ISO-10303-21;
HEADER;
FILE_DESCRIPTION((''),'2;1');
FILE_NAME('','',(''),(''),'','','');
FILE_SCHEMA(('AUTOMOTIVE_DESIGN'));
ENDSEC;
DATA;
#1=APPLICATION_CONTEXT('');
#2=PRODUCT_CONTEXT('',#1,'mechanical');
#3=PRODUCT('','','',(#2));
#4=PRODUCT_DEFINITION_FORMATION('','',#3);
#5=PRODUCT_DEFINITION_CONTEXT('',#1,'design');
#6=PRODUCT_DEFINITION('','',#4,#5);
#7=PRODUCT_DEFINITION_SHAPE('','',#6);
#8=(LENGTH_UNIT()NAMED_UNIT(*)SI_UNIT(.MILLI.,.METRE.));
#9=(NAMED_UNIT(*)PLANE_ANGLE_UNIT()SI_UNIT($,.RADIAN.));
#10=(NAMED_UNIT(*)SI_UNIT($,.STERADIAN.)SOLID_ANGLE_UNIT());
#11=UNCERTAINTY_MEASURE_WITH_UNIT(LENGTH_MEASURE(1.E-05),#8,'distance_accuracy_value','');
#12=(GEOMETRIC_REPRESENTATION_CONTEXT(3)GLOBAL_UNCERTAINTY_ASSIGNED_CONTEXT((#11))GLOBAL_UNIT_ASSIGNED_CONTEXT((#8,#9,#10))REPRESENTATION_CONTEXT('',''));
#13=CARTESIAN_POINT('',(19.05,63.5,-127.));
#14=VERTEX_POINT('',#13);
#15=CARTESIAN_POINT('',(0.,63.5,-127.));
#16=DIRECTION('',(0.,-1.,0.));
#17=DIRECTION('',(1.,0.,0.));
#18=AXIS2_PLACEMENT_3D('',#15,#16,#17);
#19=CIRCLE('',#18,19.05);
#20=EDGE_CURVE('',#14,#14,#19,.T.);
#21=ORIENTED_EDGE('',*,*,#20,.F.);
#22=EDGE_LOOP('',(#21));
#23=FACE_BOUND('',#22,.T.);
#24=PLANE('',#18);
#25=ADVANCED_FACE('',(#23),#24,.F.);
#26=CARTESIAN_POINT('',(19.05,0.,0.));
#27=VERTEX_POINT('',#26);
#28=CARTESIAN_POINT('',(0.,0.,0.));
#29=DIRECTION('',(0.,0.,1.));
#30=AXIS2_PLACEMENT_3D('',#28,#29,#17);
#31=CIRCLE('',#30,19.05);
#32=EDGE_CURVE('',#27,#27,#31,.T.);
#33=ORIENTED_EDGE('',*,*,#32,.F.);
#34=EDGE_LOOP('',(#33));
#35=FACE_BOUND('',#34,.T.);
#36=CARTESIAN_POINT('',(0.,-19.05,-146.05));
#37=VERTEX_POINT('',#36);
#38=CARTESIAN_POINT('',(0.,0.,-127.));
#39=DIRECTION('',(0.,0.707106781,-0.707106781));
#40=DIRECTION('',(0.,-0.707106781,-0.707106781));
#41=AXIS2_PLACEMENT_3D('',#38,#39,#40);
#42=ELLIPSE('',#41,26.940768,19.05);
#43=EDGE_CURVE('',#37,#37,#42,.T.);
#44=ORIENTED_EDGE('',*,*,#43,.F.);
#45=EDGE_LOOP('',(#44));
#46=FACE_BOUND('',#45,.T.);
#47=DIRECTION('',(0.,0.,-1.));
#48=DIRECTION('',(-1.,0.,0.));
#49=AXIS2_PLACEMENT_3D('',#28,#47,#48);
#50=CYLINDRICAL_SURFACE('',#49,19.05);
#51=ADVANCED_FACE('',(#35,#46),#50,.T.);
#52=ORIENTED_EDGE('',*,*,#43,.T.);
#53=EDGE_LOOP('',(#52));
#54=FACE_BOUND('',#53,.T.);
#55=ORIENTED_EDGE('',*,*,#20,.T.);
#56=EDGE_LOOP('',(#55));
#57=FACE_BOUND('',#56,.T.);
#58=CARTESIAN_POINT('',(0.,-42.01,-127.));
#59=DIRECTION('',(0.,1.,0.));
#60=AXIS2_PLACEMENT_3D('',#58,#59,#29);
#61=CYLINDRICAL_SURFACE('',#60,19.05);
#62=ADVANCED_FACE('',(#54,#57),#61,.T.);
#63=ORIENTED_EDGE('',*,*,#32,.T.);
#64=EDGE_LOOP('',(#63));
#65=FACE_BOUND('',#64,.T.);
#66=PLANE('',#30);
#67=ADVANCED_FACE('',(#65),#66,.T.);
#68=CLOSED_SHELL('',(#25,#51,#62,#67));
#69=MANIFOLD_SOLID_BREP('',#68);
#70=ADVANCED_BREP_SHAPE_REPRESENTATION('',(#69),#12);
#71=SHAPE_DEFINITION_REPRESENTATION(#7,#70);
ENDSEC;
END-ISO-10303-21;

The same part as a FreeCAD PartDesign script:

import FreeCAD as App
import Part
import Sketcher
Q = App.Units.Quantity

doc = App.newDocument("Part")
body = doc.addObject("PartDesign::Body", "Body")

sketch1 = body.newObject("Sketcher::SketchObject", "Sketch")
sketch1.AttachmentSupport = (doc.getObject("XY_Plane"), [""])
sketch1.MapMode = "FlatFace"
sketch1.addGeometry(Part.Circle(App.Vector(0, 0, 0), App.Vector(0, 0, 1), 19), False)
sketch1.addConstraint(Sketcher.Constraint("Coincident", 0, 3, -1, 1))
sketch1.addConstraint(Sketcher.Constraint("Diameter", 0, Q("1.5 in")))

sketch2 = body.newObject("Sketcher::SketchObject", "Sketch001")
sketch2.AttachmentSupport = (doc.getObject("YZ_Plane"), [""])
sketch2.MapMode = "FlatFace"
sketch2.addGeometry(Part.LineSegment(App.Vector(0, 0, 0), App.Vector(0, -127, 0)), False)
sketch2.addGeometry(Part.LineSegment(App.Vector(0, -127, 0), App.Vector(64, -127, 0)), False)
sketch2.addConstraint(Sketcher.Constraint("Coincident", 0, 2, 1, 1))
sketch2.addConstraint(Sketcher.Constraint("Vertical", 0))
sketch2.addConstraint(Sketcher.Constraint("Horizontal", 1))
sketch2.addConstraint(Sketcher.Constraint("Coincident", 0, 1, -1, 1))
sketch2.addConstraint(Sketcher.Constraint("DistanceY", 0, 2, 0, 1, Q("5 in")))
sketch2.addConstraint(Sketcher.Constraint("DistanceX", 1, 1, 1, 2, Q("2.5 in")))
doc.recompute()

additivepipe = body.newObject("PartDesign::AdditivePipe", "AdditivePipe")
additivepipe.Profile = sketch1
additivepipe.Spine = (sketch2, ["Edge1", "Edge2"])
additivepipe.Transition = "Right corner"

doc.recompute()
